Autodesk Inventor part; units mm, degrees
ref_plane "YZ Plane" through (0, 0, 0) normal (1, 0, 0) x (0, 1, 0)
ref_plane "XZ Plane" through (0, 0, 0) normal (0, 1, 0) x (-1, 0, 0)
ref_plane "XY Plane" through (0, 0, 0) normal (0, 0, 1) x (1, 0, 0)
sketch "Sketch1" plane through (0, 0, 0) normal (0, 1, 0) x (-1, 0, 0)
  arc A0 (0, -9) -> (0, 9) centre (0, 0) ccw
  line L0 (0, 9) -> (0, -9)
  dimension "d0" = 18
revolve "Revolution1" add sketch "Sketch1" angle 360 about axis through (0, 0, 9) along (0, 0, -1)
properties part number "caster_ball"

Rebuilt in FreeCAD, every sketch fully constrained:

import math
import FreeCAD as App
import Part
import Sketcher

doc = App.newDocument("Part")
body = doc.addObject("PartDesign::Body", "Body")

# Sketch on XZ plane
sketch1 = doc.addObject("Sketcher::SketchObject", "Sketch")
body.addObject(sketch1)
sketch1.AttachmentSupport = (doc.XZ_Plane, [""])
sketch1.MapMode = "FlatFace"
sketch1.addGeometry(Part.LineSegment(App.Vector(0, 9, 0), App.Vector(0, -9, 0)), False)
sketch1.addGeometry(Part.ArcOfCircle(Part.Circle(App.Vector(0, 0, 0), App.Vector(0, 0, 1), 9), math.radians(90), math.radians(270)), False)
sketch1.addConstraint(Sketcher.Constraint("Coincident", 0, 1, 1, 1))
sketch1.addConstraint(Sketcher.Constraint("Coincident", 1, 2, 0, 2))
sketch1.addConstraint(Sketcher.Constraint("Vertical", 0))
sketch1.addConstraint(Sketcher.Constraint("Coincident", 1, 3, -1, 1))
sketch1.addConstraint(Sketcher.Constraint("PointOnObject", 0, 1, -2))
sketch1.addConstraint(Sketcher.Constraint("Radius", 1, 9.0))
revolution = doc.addObject("PartDesign::Revolution", "Revolution")
body.addObject(revolution)
revolution.Profile = sketch1
revolution.ReferenceAxis = (sketch1, ["V_Axis"])
revolution.Angle = 360

doc.recompute()
